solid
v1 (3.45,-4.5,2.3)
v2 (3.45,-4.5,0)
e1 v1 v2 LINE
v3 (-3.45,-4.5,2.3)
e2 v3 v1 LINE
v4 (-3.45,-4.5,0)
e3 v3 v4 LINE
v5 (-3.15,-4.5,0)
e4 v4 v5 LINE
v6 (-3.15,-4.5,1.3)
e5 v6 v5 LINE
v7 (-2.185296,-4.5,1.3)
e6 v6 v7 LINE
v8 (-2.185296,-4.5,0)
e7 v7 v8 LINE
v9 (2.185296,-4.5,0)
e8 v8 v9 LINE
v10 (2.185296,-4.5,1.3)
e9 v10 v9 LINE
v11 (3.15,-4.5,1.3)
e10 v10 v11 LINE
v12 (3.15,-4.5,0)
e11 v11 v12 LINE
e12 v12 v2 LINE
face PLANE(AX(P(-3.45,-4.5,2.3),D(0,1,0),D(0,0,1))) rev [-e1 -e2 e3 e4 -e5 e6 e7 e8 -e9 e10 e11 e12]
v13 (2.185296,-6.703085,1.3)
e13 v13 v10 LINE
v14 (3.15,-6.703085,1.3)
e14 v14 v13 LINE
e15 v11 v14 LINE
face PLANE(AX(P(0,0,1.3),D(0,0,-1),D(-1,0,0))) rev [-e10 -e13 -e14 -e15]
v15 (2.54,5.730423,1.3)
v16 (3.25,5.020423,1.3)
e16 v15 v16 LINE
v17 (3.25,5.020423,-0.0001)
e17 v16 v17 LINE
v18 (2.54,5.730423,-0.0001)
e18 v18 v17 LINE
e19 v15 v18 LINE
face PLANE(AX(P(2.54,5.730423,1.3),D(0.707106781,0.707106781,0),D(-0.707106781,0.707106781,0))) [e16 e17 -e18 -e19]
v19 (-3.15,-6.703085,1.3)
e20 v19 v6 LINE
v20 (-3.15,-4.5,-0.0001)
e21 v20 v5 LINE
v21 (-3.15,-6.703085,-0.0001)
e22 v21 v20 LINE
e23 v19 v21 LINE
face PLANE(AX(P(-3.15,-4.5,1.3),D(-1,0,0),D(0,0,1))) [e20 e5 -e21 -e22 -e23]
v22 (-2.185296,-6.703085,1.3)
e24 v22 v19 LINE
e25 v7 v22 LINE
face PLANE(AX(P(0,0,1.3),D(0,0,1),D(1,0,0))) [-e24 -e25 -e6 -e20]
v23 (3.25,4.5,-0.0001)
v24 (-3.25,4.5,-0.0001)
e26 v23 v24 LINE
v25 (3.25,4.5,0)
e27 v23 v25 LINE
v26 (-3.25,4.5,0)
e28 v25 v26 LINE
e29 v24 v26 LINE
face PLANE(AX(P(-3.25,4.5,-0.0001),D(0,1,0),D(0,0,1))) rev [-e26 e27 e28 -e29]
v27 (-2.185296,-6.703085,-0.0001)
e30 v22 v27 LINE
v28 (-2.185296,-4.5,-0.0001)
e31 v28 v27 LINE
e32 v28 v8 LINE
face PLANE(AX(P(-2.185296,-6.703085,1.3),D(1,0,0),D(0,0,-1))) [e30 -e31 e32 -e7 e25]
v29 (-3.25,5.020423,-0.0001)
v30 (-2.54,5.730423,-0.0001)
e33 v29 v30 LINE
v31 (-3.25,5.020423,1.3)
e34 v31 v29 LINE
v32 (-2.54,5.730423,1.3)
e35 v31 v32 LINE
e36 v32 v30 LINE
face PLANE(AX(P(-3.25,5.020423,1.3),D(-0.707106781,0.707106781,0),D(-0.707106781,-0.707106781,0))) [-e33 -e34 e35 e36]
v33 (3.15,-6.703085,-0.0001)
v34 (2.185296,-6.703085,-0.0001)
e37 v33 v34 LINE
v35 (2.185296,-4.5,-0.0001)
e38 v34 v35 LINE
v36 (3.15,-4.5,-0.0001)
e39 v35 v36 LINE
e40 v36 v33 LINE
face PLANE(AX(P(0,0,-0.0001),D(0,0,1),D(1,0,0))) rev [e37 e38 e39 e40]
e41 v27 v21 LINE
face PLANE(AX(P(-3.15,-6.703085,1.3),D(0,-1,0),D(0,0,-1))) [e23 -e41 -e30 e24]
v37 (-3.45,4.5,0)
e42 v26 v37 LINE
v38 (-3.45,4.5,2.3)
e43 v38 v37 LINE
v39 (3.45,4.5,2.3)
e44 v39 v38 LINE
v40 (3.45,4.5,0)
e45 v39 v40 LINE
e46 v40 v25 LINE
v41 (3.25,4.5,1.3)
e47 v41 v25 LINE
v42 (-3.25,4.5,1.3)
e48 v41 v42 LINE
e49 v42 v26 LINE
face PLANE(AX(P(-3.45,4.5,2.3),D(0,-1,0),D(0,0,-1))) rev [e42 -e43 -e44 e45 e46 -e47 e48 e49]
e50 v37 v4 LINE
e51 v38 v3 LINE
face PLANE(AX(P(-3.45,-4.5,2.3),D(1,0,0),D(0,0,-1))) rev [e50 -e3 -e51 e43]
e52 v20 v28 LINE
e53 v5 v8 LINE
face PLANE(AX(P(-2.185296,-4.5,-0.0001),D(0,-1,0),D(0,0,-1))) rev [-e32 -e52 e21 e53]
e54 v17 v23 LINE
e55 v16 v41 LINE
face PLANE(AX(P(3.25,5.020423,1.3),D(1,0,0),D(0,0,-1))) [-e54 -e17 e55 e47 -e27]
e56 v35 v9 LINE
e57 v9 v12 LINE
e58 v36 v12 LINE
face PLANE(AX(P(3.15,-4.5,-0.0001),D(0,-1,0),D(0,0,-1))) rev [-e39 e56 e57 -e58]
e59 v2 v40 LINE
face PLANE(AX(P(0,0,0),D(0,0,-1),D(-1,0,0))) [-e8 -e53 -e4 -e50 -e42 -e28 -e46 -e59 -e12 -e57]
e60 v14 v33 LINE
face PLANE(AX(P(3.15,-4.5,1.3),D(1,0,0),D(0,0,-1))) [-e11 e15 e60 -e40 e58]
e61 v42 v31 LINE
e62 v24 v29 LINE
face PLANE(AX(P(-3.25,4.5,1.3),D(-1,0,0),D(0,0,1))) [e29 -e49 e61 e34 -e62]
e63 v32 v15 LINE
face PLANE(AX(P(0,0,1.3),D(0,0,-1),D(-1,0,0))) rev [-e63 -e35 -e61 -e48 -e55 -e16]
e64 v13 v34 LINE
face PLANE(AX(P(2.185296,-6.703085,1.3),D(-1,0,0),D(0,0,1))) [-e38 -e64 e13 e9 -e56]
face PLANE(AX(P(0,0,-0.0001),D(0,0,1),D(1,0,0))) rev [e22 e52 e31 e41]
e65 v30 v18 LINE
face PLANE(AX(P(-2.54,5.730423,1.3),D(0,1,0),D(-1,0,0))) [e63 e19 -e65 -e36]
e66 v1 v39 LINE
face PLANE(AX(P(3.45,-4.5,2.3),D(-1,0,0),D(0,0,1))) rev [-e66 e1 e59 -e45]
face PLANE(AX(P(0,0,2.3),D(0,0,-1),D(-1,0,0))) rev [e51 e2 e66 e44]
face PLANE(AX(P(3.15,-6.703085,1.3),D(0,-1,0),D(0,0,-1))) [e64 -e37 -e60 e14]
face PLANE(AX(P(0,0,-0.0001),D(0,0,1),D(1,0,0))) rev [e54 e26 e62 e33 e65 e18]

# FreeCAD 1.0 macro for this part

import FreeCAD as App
import Part
import Sketcher

doc = App.newDocument("Part")
body = doc.addObject("PartDesign::Body", "Body")

sketch1 = body.newObject("Sketcher::SketchObject", "Sketch")
sketch1.AttachmentSupport = (doc.getObject("XY_Plane"), [""])
sketch1.MapMode = "FlatFace"
sketch1.addGeometry([
    Part.LineSegment(App.Vector(-3, 4, 0), App.Vector(-3, -4, 0)),
    Part.LineSegment(App.Vector(-3, -4, 0), App.Vector(3, -4, 0)),
    Part.LineSegment(App.Vector(3, -4, 0), App.Vector(3, 4, 0)),
    Part.LineSegment(App.Vector(3, 4, 0), App.Vector(-3, 4, 0)),
], False)
sketch1.addConstraint([
    Sketcher.Constraint("Coincident", 0, 2, 1, 1),
    Sketcher.Constraint("Coincident", 1, 2, 2, 1),
    Sketcher.Constraint("Coincident", 2, 2, 3, 1),
    Sketcher.Constraint("Coincident", 3, 2, 0, 1),
    Sketcher.Constraint("Vertical", 0),
    Sketcher.Constraint("Horizontal", 1),
    Sketcher.Constraint("Vertical", 2),
    Sketcher.Constraint("Horizontal", 3),
    Sketcher.Constraint("Symmetric", 0, 2, 2, 2, -1, 1),
    Sketcher.Constraint("DistanceY", 0, 2, 0, 1, 9.0),
    Sketcher.Constraint("DistanceX", 1, 1, 1, 2, 6.9),
])
pad1 = body.newObject("PartDesign::Pad", "Pad")
pad1.Profile = sketch1
pad1.Length = 2.3

sketch2 = body.newObject("Sketcher::SketchObject", "Sketch001")
sketch2.AttachmentSupport = (doc.getObject("XY_Plane"), [""])
sketch2.MapMode = "FlatFace"
sketch2.addGeometry([
    Part.LineSegment(App.Vector(-3.2, 4.5, 0), App.Vector(-3.2, 5, 0)),
    Part.LineSegment(App.Vector(-3.2, 5, 0), App.Vector(-2.5, 5.7, 0)),
    Part.LineSegment(App.Vector(-2.5, 5.7, 0), App.Vector(2.5, 5.7, 0)),
    Part.LineSegment(App.Vector(2.5, 5.7, 0), App.Vector(3.2, 5, 0)),
    Part.LineSegment(App.Vector(3.2, 5, 0), App.Vector(3.2, 4.5, 0)),
    Part.LineSegment(App.Vector(3.2, 4.5, 0), App.Vector(-3.2, 4.5, 0)),
    Part.LineSegment(App.Vector(3.1, -4.5, 0), App.Vector(3.1, -6.7, 0)),
    Part.LineSegment(App.Vector(3.1, -6.7, 0), App.Vector(2.2, -6.7, 0)),
    Part.LineSegment(App.Vector(2.2, -6.7, 0), App.Vector(2.2, -4.5, 0)),
    Part.LineSegment(App.Vector(2.2, -4.5, 0), App.Vector(3.1, -4.5, 0)),
    Part.LineSegment(App.Vector(-2.2, -4.5, 0), App.Vector(-2.2, -6.7, 0)),
    Part.LineSegment(App.Vector(-2.2, -6.7, 0), App.Vector(-3.1, -6.7, 0)),
    Part.LineSegment(App.Vector(-3.1, -6.7, 0), App.Vector(-3.1, -4.5, 0)),
    Part.LineSegment(App.Vector(-3.1, -4.5, 0), App.Vector(-2.2, -4.5, 0)),
], False)
sketch2.addConstraint([
    Sketcher.Constraint("Coincident", 0, 2, 1, 1),
    Sketcher.Constraint("Coincident", 1, 2, 2, 1),
    Sketcher.Constraint("Coincident", 2, 2, 3, 1),
    Sketcher.Constraint("Coincident", 3, 2, 4, 1),
    Sketcher.Constraint("Coincident", 4, 2, 5, 1),
    Sketcher.Constraint("Coincident", 5, 2, 0, 1),
    Sketcher.Constraint("Coincident", 6, 2, 7, 1),
    Sketcher.Constraint("Coincident", 7, 2, 8, 1),
    Sketcher.Constraint("Coincident", 8, 2, 9, 1),
    Sketcher.Constraint("Coincident", 9, 2, 6, 1),
    Sketcher.Constraint("Coincident", 10, 2, 11, 1),
    Sketcher.Constraint("Coincident", 11, 2, 12, 1),
    Sketcher.Constraint("Coincident", 12, 2, 13, 1),
    Sketcher.Constraint("Coincident", 13, 2, 10, 1),
    Sketcher.Constraint("Vertical", 0),
    Sketcher.Constraint("Horizontal", 2),
    Sketcher.Constraint("Vertical", 4),
    Sketcher.Constraint("Horizontal", 5),
    Sketcher.Constraint("Vertical", 6),
    Sketcher.Constraint("Horizontal", 7),
    Sketcher.Constraint("Vertical", 8),
    Sketcher.Constraint("Horizontal", 9),
    Sketcher.Constraint("Vertical", 10),
    Sketcher.Constraint("Horizontal", 11),
    Sketcher.Constraint("Vertical", 12),
    Sketcher.Constraint("Horizontal", 13),
    Sketcher.Constraint("Symmetric", 0, 2, 3, 2, -2),
    Sketcher.Constraint("Symmetric", 7, 2, 10, 2, -2),
    Sketcher.Constraint("Symmetric", 9, 2, 12, 2, -2),
    Sketcher.Constraint("Perpendicular", 1, 3),
    Sketcher.Constraint("Equal", 1, 3),
    Sketcher.Constraint("DistanceX", 5, 2, 5, 1, 6.5),
    Sketcher.Constraint("DistanceY", 8, 2, 4, 2, 9.0),
    Sketcher.Constraint("DistanceX", 2, 1, 2, 2, 5.08),
    Sketcher.Constraint("DistanceY", -1, 1, 4, 2, 4.5),
    Sketcher.Constraint("DistanceX", 6, 2, 4, 2, 0.1),
    Sketcher.Constraint("DistanceX", 7, 2, 7, 1, 0.964704),
    Sketcher.Constraint("DistanceY", 0, 1, 0, 2, 0.520423),
    Sketcher.Constraint("DistanceY", 6, 2, 6, 1, 2.203085),
])
pad2 = body.newObject("PartDesign::Pad", "Pad001")
pad2.Profile = sketch2
pad2.Length = 1.3

sketch3 = body.newObject("Sketcher::SketchObject", "Sketch002")
sketch3.AttachmentSupport = (doc.getObject("XY_Plane"), [""])
sketch3.MapMode = "FlatFace"
sketch3.addGeometry([
    Part.LineSegment(App.Vector(3.2, 5, 0), App.Vector(3.2, 4.5, 0)),
    Part.LineSegment(App.Vector(3.2, 4.5, 0), App.Vector(-3.2, 4.5, 0)),
    Part.LineSegment(App.Vector(-3.2, 4.5, 0), App.Vector(-3.2, 5, 0)),
    Part.LineSegment(App.Vector(-3.2, 5, 0), App.Vector(-2.5, 5.7, 0)),
    Part.LineSegment(App.Vector(-2.5, 5.7, 0), App.Vector(2.5, 5.7, 0)),
    Part.LineSegment(App.Vector(2.5, 5.7, 0), App.Vector(3.2, 5, 0)),
    Part.LineSegment(App.Vector(3.1, -4.5, 0), App.Vector(3.1, -6.7, 0)),
    Part.LineSegment(App.Vector(3.1, -6.7, 0), App.Vector(2.2, -6.7, 0)),
    Part.LineSegment(App.Vector(2.2, -6.7, 0), App.Vector(2.2, -4.5, 0)),
    Part.LineSegment(App.Vector(2.2, -4.5, 0), App.Vector(3.1, -4.5, 0)),
    Part.LineSegment(App.Vector(-2.2, -4.5, 0), App.Vector(-2.2, -6.7, 0)),
    Part.LineSegment(App.Vector(-2.2, -6.7, 0), App.Vector(-3.1, -6.7, 0)),
    Part.LineSegment(App.Vector(-3.1, -6.7, 0), App.Vector(-3.1, -4.5, 0)),
    Part.LineSegment(App.Vector(-3.1, -4.5, 0), App.Vector(-2.2, -4.5, 0)),
], False)
sketch3.addConstraint([
    Sketcher.Constraint("Coincident", 0, 2, 1, 1),
    Sketcher.Constraint("Coincident", 1, 2, 2, 1),
    Sketcher.Constraint("Coincident", 2, 2, 3, 1),
    Sketcher.Constraint("Coincident", 3, 2, 4, 1),
    Sketcher.Constraint("Coincident", 4, 2, 5, 1),
    Sketcher.Constraint("Coincident", 5, 2, 0, 1),
    Sketcher.Constraint("Coincident", 6, 2, 7, 1),
    Sketcher.Constraint("Coincident", 7, 2, 8, 1),
    Sketcher.Constraint("Coincident", 8, 2, 9, 1),
    Sketcher.Constraint("Coincident", 9, 2, 6, 1),
    Sketcher.Constraint("Coincident", 10, 2, 11, 1),
    Sketcher.Constraint("Coincident", 11, 2, 12, 1),
    Sketcher.Constraint("Coincident", 12, 2, 13, 1),
    Sketcher.Constraint("Coincident", 13, 2, 10, 1),
    Sketcher.Constraint("Vertical", 0),
    Sketcher.Constraint("Horizontal", 1),
    Sketcher.Constraint("Vertical", 2),
    Sketcher.Constraint("Horizontal", 4),
    Sketcher.Constraint("Vertical", 6),
    Sketcher.Constraint("Horizontal", 7),
    Sketcher.Constraint("Vertical", 8),
    Sketcher.Constraint("Horizontal", 9),
    Sketcher.Constraint("Vertical", 10),
    Sketcher.Constraint("Horizontal", 11),
    Sketcher.Constraint("Vertical", 12),
    Sketcher.Constraint("Horizontal", 13),
    Sketcher.Constraint("Symmetric", 2, 2, 5, 2, -2),
    Sketcher.Constraint("Symmetric", 7, 2, 10, 2, -2),
    Sketcher.Constraint("Symmetric", 9, 2, 12, 2, -2),
    Sketcher.Constraint("Perpendicular", 3, 5),
    Sketcher.Constraint("Equal", 3, 5),
    Sketcher.Constraint("DistanceX", 1, 2, 1, 1, 6.5),
    Sketcher.Constraint("DistanceY", 8, 2, 0, 2, 9.0),
    Sketcher.Constraint("DistanceX", 4, 1, 4, 2, 5.08),
    Sketcher.Constraint("DistanceY", -1, 1, 0, 2, 4.5),
    Sketcher.Constraint("DistanceX", 6, 2, 0, 2, 0.1),
    Sketcher.Constraint("DistanceX", 7, 2, 7, 1, 0.964704),
    Sketcher.Constraint("DistanceY", 0, 2, 0, 1, 0.520423),
    Sketcher.Constraint("DistanceY", 6, 2, 6, 1, 2.203085),
])
pad3 = body.newObject("PartDesign::Pad", "Pad002")
pad3.Profile = sketch3
pad3.Length = 0.0001
pad3.Reversed = True

doc.recompute()
